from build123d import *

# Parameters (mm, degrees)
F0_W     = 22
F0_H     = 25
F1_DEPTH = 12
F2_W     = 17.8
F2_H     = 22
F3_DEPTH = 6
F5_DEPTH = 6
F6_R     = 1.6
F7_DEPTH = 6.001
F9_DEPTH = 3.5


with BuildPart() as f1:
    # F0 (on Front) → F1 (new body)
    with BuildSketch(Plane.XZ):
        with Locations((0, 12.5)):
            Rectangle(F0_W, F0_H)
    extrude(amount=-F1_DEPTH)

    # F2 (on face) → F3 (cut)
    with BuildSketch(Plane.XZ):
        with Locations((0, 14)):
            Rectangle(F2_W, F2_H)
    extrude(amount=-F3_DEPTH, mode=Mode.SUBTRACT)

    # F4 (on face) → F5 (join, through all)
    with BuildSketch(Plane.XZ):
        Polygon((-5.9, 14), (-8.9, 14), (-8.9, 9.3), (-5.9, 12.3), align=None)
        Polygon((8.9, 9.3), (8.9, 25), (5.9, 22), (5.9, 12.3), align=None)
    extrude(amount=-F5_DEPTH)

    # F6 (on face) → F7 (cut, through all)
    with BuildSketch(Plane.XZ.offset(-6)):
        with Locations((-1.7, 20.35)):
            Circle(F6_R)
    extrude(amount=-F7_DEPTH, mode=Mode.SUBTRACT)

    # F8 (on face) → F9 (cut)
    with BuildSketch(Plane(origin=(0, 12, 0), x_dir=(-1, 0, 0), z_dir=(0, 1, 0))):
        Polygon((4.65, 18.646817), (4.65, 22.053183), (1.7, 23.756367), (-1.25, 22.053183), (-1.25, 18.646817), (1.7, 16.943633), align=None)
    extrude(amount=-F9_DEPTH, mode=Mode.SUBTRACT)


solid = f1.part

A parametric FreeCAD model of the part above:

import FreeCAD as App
import Part
import Sketcher
Q = App.Units.Quantity

doc = App.newDocument("Part")
body = doc.addObject("PartDesign::Body", "Body")

# Sketch on XZ plane
sketch1 = doc.addObject("Sketcher::SketchObject", "Sketch")
body.addObject(sketch1)
sketch1.AttachmentSupport = (doc.XZ_Plane, [""])
sketch1.MapMode = "FlatFace"
sketch1.addGeometry(Part.LineSegment(App.Vector(-11, 25, 0), App.Vector(-11, 0, 0)), False)
sketch1.addGeometry(Part.LineSegment(App.Vector(-11, 0, 0), App.Vector(11, 0, 0)), False)
sketch1.addGeometry(Part.LineSegment(App.Vector(11, 0, 0), App.Vector(11, 25, 0)), False)
sketch1.addGeometry(Part.LineSegment(App.Vector(11, 25, 0), App.Vector(-11, 25, 0)), False)
sketch1.addConstraint(Sketcher.Constraint("Coincident", 0, 2, 1, 1))
sketch1.addConstraint(Sketcher.Constraint("Coincident", 1, 2, 2, 1))
sketch1.addConstraint(Sketcher.Constraint("Coincident", 2, 2, 3, 1))
sketch1.addConstraint(Sketcher.Constraint("Coincident", 3, 2, 0, 1))
sketch1.addConstraint(Sketcher.Constraint("Vertical", 0))
sketch1.addConstraint(Sketcher.Constraint("Horizontal", 1))
sketch1.addConstraint(Sketcher.Constraint("Vertical", 2))
sketch1.addConstraint(Sketcher.Constraint("Horizontal", 3))
sketch1.addConstraint(Sketcher.Constraint("Symmetric", 0, 2, 1, 2, -1, 1))
sketch1.addConstraint(Sketcher.Constraint("DistanceX", 1, 1, 1, 2, 22.0))
sketch1.addConstraint(Sketcher.Constraint("DistanceY", 0, 2, 0, 1, 25.0))
pad1 = doc.addObject("PartDesign::Pad", "Pad")
body.addObject(pad1)
pad1.Profile = sketch1
pad1.Length = 12
pad1.Reversed = True

# Sketch on XZ plane
sketch2 = doc.addObject("Sketcher::SketchObject", "Sketch001")
body.addObject(sketch2)
sketch2.AttachmentSupport = (doc.XZ_Plane, [""])
sketch2.MapMode = "FlatFace"
sketch2.addGeometry(Part.LineSegment(App.Vector(-8.9, 25, 0), App.Vector(-8.9, 3, 0)), False)
sketch2.addGeometry(Part.LineSegment(App.Vector(-8.9, 3, 0), App.Vector(8.9, 3, 0)), False)
sketch2.addGeometry(Part.LineSegment(App.Vector(8.9, 3, 0), App.Vector(8.9, 25, 0)), False)
sketch2.addGeometry(Part.LineSegment(App.Vector(8.9, 25, 0), App.Vector(-8.9, 25, 0)), False)
sketch2.addConstraint(Sketcher.Constraint("Coincident", 0, 2, 1, 1))
sketch2.addConstraint(Sketcher.Constraint("Coincident", 1, 2, 2, 1))
sketch2.addConstraint(Sketcher.Constraint("Coincident", 2, 2, 3, 1))
sketch2.addConstraint(Sketcher.Constraint("Coincident", 3, 2, 0, 1))
sketch2.addConstraint(Sketcher.Constraint("Vertical", 0))
sketch2.addConstraint(Sketcher.Constraint("Horizontal", 1))
sketch2.addConstraint(Sketcher.Constraint("Vertical", 2))
sketch2.addConstraint(Sketcher.Constraint("Horizontal", 3))
sketch2.addConstraint(Sketcher.Constraint("DistanceY", 0, 2, 0, 1, 22.0))
sketch2.addConstraint(Sketcher.Constraint("DistanceX", 1, 1, 1, 2, 17.8))
sketch2.addConstraint(Sketcher.Constraint("DistanceY", -1, 1, 0, 2, 3.0))
sketch2.addConstraint(Sketcher.Constraint("DistanceX", 0, 2, -1, 1, 8.9))
pocket1 = doc.addObject("PartDesign::Pocket", "Pocket")
body.addObject(pocket1)
pocket1.Profile = sketch2
pocket1.Length = 6

# Sketch on XZ plane
sketch3 = doc.addObject("Sketcher::SketchObject", "Sketch002")
body.addObject(sketch3)
sketch3.AttachmentSupport = (doc.XZ_Plane, [""])
sketch3.MapMode = "FlatFace"
sketch3.addGeometry(Part.LineSegment(App.Vector(-5.9, 14, 0), App.Vector(-8.9, 14, 0)), False)
sketch3.addGeometry(Part.LineSegment(App.Vector(-8.9, 14, 0), App.Vector(-8.9, 9.3, 0)), False)
sketch3.addGeometry(Part.LineSegment(App.Vector(-8.9, 9.3, 0), App.Vector(-5.9, 12.3, 0)), False)
sketch3.addGeometry(Part.LineSegment(App.Vector(-5.9, 12.3, 0), App.Vector(-5.9, 14, 0)), False)
sketch3.addGeometry(Part.LineSegment(App.Vector(8.9, 9.3, 0), App.Vector(8.9, 25, 0)), False)
sketch3.addGeometry(Part.LineSegment(App.Vector(8.9, 25, 0), App.Vector(5.9, 22, 0)), False)
sketch3.addGeometry(Part.LineSegment(App.Vector(5.9, 22, 0), App.Vector(5.9, 12.3, 0)), False)
sketch3.addGeometry(Part.LineSegment(App.Vector(5.9, 12.3, 0), App.Vector(8.9, 9.3, 0)), False)
sketch3.addConstraint(Sketcher.Constraint("Coincident", 0, 2, 1, 1))
sketch3.addConstraint(Sketcher.Constraint("Coincident", 1, 2, 2, 1))
sketch3.addConstraint(Sketcher.Constraint("Coincident", 2, 2, 3, 1))
sketch3.addConstraint(Sketcher.Constraint("Coincident", 3, 2, 0, 1))
sketch3.addConstraint(Sketcher.Constraint("Coincident", 4, 2, 5, 1))
sketch3.addConstraint(Sketcher.Constraint("Coincident", 5, 2, 6, 1))
sketch3.addConstraint(Sketcher.Constraint("Coincident", 6, 2, 7, 1))
sketch3.addConstraint(Sketcher.Constraint("Coincident", 7, 2, 4, 1))
sketch3.addConstraint(Sketcher.Constraint("Horizontal", 0))
sketch3.addConstraint(Sketcher.Constraint("Vertical", 1))
sketch3.addConstraint(Sketcher.Constraint("Vertical", 3))
sketch3.addConstraint(Sketcher.Constraint("Vertical", 4))
sketch3.addConstraint(Sketcher.Constraint("Vertical", 6))
sketch3.addConstraint(Sketcher.Constraint("Symmetric", 2, 2, 6, 2, -2))
sketch3.addConstraint(Sketcher.Constraint("Symmetric", 1, 2, 7, 2, -2))
sketch3.addConstraint(Sketcher.Constraint("Parallel", 2, 5))
sketch3.addConstraint(Sketcher.Constraint("Perpendicular", 5, 7))
sketch3.addConstraint(Sketcher.Constraint("DistanceX", 0, 2, 0, 1, 3.0))
sketch3.addConstraint(Sketcher.Constraint("DistanceY", 1, 2, 1, 1, 4.7))
sketch3.addConstraint(Sketcher.Constraint("DistanceY", 4, 1, 4, 2, 15.7))
sketch3.addConstraint(Sketcher.Constraint("DistanceY", -1, 1, 0, 2, 14.0))
sketch3.addConstraint(Sketcher.Constraint("DistanceX", 0, 2, -1, 1, 8.9))
pad2 = doc.addObject("PartDesign::Pad", "Pad001")
body.addObject(pad2)
pad2.Profile = sketch3
pad2.Type = "UpToLast"
pad2.Reversed = True

# Sketch on XZ plane
sketch4 = doc.addObject("Sketcher::SketchObject", "Sketch003")
body.addObject(sketch4)
sketch4.AttachmentSupport = (doc.XZ_Plane, [""])
sketch4.MapMode = "FlatFace"
sketch4.AttachmentOffset = App.Placement(App.Vector(0, 0, -6), App.Rotation())
sketch4.addGeometry(Part.Circle(App.Vector(-1.7, 20.35, 0), App.Vector(0, 0, 1), 1.6), False)
sketch4.addConstraint(Sketcher.Constraint("Diameter", 0, 3.2))
sketch4.addConstraint(Sketcher.Constraint("DistanceX", 0, 3, -1, 1, 1.7))
sketch4.addConstraint(Sketcher.Constraint("DistanceY", -1, 1, 0, 3, 20.35))
pocket2 = doc.addObject("PartDesign::Pocket", "Pocket001")
body.addObject(pocket2)
pocket2.Profile = sketch4
pocket2.Type = "ThroughAll"

# Sketch on XZ plane
sketch5 = doc.addObject("Sketcher::SketchObject", "Sketch004")
body.addObject(sketch5)
sketch5.AttachmentSupport = (doc.XZ_Plane, [""])
sketch5.MapMode = "FlatFace"
sketch5.AttachmentOffset = App.Placement(App.Vector(0, 0, -12), App.Rotation())
sketch5.addGeometry(Part.LineSegment(App.Vector(-4.65, 18.646817, 0), App.Vector(-4.65, 22.053183, 0)), False)
sketch5.addGeometry(Part.LineSegment(App.Vector(-4.65, 22.053183, 0), App.Vector(-1.7, 23.756367, 0)), False)
sketch5.addGeometry(Part.LineSegment(App.Vector(-1.7, 23.756367, 0), App.Vector(1.25, 22.053183, 0)), False)
sketch5.addGeometry(Part.LineSegment(App.Vector(1.25, 22.053183, 0), App.Vector(1.25, 18.646817, 0)), False)
sketch5.addGeometry(Part.LineSegment(App.Vector(1.25, 18.646817, 0), App.Vector(-1.7, 16.943633, 0)), False)
sketch5.addGeometry(Part.LineSegment(App.Vector(-1.7, 16.943633, 0), App.Vector(-4.65, 18.646817, 0)), False)
sketch5.addConstraint(Sketcher.Constraint("Coincident", 0, 2, 1, 1))
sketch5.addConstraint(Sketcher.Constraint("Coincident", 1, 2, 2, 1))
sketch5.addConstraint(Sketcher.Constraint("Coincident", 2, 2, 3, 1))
sketch5.addConstraint(Sketcher.Constraint("Coincident", 3, 2, 4, 1))
sketch5.addConstraint(Sketcher.Constraint("Coincident", 4, 2, 5, 1))
sketch5.addConstraint(Sketcher.Constraint("Coincident", 5, 2, 0, 1))
sketch5.addConstraint(Sketcher.Constraint("Vertical", 0))
sketch5.addConstraint(Sketcher.Constraint("Vertical", 3))
sketch5.addConstraint(Sketcher.Constraint("Parallel", 1, 4))
sketch5.addConstraint(Sketcher.Constraint("Parallel", 2, 5))
sketch5.addConstraint(Sketcher.Constraint("Horizontal", 0, 2, 2, 2))
sketch5.addConstraint(Sketcher.Constraint("Horizontal", 3, 2, 5, 2))
sketch5.addConstraint(Sketcher.Constraint("Vertical", 1, 2, 4, 2))
sketch5.addConstraint(Sketcher.Constraint("Angle", 1, Q("30.00001 deg")))
sketch5.addConstraint(Sketcher.Constraint("DistanceX", 1, 2, -1, 1, 1.7))
sketch5.addConstraint(Sketcher.Constraint("DistanceX", 0, 2, 2, 2, 5.9))
sketch5.addConstraint(Sketcher.Constraint("DistanceY", 0, 1, 0, 2, 3.406366))
sketch5.addConstraint(Sketcher.Constraint("DistanceY", -1, 1, 0, 2, 22.053183))
pocket3 = doc.addObject("PartDesign::Pocket", "Pocket002")
body.addObject(pocket3)
pocket3.Profile = sketch5
pocket3.Length = 3.5
pocket3.Reversed = True

doc.recompute()
